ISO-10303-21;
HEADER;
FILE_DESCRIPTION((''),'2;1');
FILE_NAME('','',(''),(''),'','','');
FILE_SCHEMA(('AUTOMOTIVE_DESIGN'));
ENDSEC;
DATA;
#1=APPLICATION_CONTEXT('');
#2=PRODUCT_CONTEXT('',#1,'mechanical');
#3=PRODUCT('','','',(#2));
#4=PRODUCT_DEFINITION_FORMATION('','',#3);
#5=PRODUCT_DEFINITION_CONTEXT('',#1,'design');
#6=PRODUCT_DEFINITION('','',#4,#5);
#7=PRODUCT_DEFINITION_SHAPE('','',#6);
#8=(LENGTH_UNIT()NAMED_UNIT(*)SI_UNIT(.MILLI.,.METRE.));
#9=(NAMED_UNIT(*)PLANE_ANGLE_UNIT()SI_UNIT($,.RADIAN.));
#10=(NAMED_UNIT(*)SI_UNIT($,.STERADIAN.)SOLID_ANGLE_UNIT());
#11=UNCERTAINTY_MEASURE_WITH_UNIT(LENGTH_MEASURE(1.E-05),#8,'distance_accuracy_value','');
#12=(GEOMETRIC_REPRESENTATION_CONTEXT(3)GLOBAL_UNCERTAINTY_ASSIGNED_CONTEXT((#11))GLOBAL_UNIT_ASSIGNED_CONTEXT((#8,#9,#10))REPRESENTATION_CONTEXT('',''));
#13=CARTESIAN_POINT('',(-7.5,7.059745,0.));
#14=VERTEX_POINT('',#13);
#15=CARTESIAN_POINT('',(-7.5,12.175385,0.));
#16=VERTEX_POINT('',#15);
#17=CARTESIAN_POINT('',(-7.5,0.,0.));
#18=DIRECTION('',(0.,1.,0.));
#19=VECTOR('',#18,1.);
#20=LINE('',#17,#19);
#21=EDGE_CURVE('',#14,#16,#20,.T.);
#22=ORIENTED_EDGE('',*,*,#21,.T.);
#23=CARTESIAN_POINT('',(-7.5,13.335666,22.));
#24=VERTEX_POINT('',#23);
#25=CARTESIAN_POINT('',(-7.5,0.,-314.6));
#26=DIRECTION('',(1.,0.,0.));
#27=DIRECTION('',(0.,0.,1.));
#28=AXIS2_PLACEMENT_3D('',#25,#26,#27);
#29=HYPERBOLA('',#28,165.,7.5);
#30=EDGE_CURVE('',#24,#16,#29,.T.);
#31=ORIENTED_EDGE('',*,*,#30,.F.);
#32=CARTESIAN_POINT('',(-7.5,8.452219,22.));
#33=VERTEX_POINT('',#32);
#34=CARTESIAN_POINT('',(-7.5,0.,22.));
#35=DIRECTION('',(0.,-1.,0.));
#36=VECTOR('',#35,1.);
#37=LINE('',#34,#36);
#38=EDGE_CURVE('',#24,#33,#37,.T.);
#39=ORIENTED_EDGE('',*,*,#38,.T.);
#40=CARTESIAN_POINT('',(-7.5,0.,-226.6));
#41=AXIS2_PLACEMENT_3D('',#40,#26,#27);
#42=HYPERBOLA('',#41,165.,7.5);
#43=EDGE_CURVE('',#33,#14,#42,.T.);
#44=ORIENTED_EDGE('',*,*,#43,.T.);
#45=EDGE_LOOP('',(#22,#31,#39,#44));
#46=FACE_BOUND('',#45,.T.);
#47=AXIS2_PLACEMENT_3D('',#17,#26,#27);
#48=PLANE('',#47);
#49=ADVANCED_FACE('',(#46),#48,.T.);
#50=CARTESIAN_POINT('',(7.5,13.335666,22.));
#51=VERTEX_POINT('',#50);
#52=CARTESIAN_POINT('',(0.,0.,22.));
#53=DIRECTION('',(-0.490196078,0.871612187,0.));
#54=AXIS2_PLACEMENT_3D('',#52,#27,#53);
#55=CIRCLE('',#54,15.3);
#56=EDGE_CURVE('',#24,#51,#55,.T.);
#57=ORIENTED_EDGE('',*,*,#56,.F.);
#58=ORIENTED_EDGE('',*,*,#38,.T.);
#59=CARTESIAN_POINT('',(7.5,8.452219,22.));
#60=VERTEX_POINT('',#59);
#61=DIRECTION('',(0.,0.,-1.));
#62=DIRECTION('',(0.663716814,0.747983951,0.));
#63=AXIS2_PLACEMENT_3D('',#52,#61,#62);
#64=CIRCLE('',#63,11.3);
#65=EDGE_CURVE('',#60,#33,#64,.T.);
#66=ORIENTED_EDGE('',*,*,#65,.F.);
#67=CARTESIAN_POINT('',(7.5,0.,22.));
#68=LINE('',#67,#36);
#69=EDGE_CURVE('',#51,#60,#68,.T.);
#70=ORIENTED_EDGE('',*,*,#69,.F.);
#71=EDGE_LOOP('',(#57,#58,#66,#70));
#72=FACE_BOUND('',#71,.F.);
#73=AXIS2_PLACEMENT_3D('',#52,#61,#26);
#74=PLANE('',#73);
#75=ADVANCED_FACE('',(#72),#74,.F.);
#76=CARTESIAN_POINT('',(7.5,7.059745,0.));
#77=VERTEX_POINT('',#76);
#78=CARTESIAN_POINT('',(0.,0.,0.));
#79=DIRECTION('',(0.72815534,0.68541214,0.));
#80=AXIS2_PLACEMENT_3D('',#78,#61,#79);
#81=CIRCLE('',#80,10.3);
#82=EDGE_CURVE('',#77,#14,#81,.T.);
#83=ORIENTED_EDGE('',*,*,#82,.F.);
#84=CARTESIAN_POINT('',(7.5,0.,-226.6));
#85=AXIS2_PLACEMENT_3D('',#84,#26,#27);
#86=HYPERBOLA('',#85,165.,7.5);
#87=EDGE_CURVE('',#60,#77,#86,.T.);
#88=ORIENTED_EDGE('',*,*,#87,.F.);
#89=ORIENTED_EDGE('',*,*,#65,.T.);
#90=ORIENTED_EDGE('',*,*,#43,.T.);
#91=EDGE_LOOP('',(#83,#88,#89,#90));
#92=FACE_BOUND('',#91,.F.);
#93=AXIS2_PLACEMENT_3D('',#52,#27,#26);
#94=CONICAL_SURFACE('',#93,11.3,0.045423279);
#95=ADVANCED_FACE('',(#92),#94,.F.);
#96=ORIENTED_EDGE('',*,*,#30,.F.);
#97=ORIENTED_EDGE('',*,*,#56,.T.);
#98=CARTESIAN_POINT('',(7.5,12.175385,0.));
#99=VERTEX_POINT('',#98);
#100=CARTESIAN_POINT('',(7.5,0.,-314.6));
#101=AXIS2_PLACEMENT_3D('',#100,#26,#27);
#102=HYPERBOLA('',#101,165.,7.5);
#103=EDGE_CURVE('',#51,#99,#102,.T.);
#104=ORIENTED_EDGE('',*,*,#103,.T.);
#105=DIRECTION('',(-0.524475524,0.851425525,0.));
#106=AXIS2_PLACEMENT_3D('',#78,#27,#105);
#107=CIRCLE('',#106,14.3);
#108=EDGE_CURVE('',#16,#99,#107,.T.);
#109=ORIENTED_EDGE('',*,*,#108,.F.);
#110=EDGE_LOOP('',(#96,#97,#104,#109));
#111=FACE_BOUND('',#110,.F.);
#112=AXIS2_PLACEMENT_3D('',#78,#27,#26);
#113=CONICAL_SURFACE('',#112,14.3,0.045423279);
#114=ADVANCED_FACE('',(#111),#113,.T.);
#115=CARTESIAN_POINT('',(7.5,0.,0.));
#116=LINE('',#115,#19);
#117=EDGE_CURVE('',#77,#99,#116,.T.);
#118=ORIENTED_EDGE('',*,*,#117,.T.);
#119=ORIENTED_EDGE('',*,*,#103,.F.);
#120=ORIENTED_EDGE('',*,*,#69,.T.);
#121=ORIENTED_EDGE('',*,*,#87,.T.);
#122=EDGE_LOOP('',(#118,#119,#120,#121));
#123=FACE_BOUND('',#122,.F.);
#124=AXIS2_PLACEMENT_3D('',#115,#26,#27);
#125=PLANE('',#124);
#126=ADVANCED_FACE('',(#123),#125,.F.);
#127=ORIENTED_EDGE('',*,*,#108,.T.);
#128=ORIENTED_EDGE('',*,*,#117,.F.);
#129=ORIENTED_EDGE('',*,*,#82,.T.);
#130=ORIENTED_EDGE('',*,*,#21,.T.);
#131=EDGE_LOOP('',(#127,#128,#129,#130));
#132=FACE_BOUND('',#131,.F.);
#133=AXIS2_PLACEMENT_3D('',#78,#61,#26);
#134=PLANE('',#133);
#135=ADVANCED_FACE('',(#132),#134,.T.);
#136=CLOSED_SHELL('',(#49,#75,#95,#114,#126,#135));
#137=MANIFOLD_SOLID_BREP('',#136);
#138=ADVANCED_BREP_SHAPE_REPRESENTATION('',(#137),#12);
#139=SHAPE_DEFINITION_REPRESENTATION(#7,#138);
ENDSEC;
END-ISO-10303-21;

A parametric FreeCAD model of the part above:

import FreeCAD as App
import Part
import Sketcher

V = App.Vector
Q = App.Units.Quantity

doc = App.newDocument("Part")
params = doc.addObject("Spreadsheet::Sheet", "Params")
for row, (alias, value) in enumerate([
    ("sketch1_width", "4 mm"),
    ("revolution_angle", "360 deg"),
    ("sketch2_width", "15 mm"),
    ("pocket1_length", "25 mm"),
], start=1):
    params.set(f"A{row}", alias)
    params.set(f"B{row}", "=" + value)
    params.setAlias(f"B{row}", alias)

body = doc.addObject("PartDesign::Body", "Body")

# Sketch on XZ plane
sketch1 = body.newObject("Sketcher::SketchObject", "Sketch")
sketch1.AttachmentSupport = (doc.getObject("XZ_Plane"), [""])
sketch1.MapMode = "FlatFace"
sketch1.addGeometry(Part.LineSegment(V(15.3, 22, 0), V(11.3, 22, 0)), False)
sketch1.addGeometry(Part.LineSegment(V(11.3, 22, 0), V(10.3, 0, 0)), False)
sketch1.addGeometry(Part.LineSegment(V(10.3, 0, 0), V(14.3, 0, 0)), False)
sketch1.addGeometry(Part.LineSegment(V(14.3, 0, 0), V(15.3, 22, 0)), False)
sketch1.addConstraint(Sketcher.Constraint("Coincident", 0, 2, 1, 1))
sketch1.addConstraint(Sketcher.Constraint("Coincident", 1, 2, 2, 1))
sketch1.addConstraint(Sketcher.Constraint("Coincident", 2, 2, 3, 1))
sketch1.addConstraint(Sketcher.Constraint("Coincident", 3, 2, 0, 1))
sketch1.addConstraint(Sketcher.Constraint("Horizontal", 0))
sketch1.addConstraint(Sketcher.Constraint("Horizontal", 2))
sketch1.addConstraint(Sketcher.Constraint("PointOnObject", 1, 2, -1))
sketch1.addConstraint(Sketcher.Constraint("Parallel", 1, 3))
sketch1.addConstraint(Sketcher.Constraint("DistanceX", 0, 2, 0, 1, Q("4 mm")))
sketch1.addConstraint(Sketcher.Constraint("DistanceY", -1, 1, 0, 2, Q("22 mm")))
sketch1.addConstraint(Sketcher.Constraint("DistanceX", 1, 2, 0, 2, Q("1 mm")))
sketch1.addConstraint(Sketcher.Constraint("DistanceX", -1, 1, 0, 2, Q("11.3 mm")))
sketch1.setExpression("Constraints[8]", "Params.sketch1_width")
revolution = body.newObject("PartDesign::Revolution", "Revolution")
revolution.Profile = sketch1
revolution.ReferenceAxis = (sketch1, ["V_Axis"])
revolution.setExpression("Angle", "Params.revolution_angle")

# Sketch on XZ plane
sketch2 = body.newObject("Sketcher::SketchObject", "Sketch001")
sketch2.AttachmentSupport = (doc.getObject("XZ_Plane"), [""])
sketch2.MapMode = "FlatFace"
sketch2.addGeometry(Part.LineSegment(V(-8, 25, 0), V(-8, 0, 0)), False)
sketch2.addGeometry(Part.LineSegment(V(-8, 0, 0), V(8, 0, 0)), False)
sketch2.addGeometry(Part.LineSegment(V(8, 0, 0), V(8, 25, 0)), False)
sketch2.addGeometry(Part.LineSegment(V(8, 25, 0), V(-8, 25, 0)), False)
sketch2.addConstraint(Sketcher.Constraint("Coincident", 0, 2, 1, 1))
sketch2.addConstraint(Sketcher.Constraint("Coincident", 1, 2, 2, 1))
sketch2.addConstraint(Sketcher.Constraint("Coincident", 2, 2, 3, 1))
sketch2.addConstraint(Sketcher.Constraint("Coincident", 3, 2, 0, 1))
sketch2.addConstraint(Sketcher.Constraint("Vertical", 0))
sketch2.addConstraint(Sketcher.Constraint("Horizontal", 1))
sketch2.addConstraint(Sketcher.Constraint("Vertical", 2))
sketch2.addConstraint(Sketcher.Constraint("Horizontal", 3))
sketch2.addConstraint(Sketcher.Constraint("Symmetric", 0, 2, 1, 2, -1, 1))
sketch2.addConstraint(Sketcher.Constraint("DistanceX", 1, 1, 1, 2, Q("15 mm")))
sketch2.addConstraint(Sketcher.Constraint("DistanceY", 0, 2, 0, 1, Q("24.842653 mm")))
sketch2.setExpression("Constraints[9]", "Params.sketch2_width")
pocket1 = body.newObject("PartDesign::Pocket", "Pocket")
pocket1.Profile = sketch2
pocket1.setExpression("Length", "Params.pocket1_length")

doc.recompute()
